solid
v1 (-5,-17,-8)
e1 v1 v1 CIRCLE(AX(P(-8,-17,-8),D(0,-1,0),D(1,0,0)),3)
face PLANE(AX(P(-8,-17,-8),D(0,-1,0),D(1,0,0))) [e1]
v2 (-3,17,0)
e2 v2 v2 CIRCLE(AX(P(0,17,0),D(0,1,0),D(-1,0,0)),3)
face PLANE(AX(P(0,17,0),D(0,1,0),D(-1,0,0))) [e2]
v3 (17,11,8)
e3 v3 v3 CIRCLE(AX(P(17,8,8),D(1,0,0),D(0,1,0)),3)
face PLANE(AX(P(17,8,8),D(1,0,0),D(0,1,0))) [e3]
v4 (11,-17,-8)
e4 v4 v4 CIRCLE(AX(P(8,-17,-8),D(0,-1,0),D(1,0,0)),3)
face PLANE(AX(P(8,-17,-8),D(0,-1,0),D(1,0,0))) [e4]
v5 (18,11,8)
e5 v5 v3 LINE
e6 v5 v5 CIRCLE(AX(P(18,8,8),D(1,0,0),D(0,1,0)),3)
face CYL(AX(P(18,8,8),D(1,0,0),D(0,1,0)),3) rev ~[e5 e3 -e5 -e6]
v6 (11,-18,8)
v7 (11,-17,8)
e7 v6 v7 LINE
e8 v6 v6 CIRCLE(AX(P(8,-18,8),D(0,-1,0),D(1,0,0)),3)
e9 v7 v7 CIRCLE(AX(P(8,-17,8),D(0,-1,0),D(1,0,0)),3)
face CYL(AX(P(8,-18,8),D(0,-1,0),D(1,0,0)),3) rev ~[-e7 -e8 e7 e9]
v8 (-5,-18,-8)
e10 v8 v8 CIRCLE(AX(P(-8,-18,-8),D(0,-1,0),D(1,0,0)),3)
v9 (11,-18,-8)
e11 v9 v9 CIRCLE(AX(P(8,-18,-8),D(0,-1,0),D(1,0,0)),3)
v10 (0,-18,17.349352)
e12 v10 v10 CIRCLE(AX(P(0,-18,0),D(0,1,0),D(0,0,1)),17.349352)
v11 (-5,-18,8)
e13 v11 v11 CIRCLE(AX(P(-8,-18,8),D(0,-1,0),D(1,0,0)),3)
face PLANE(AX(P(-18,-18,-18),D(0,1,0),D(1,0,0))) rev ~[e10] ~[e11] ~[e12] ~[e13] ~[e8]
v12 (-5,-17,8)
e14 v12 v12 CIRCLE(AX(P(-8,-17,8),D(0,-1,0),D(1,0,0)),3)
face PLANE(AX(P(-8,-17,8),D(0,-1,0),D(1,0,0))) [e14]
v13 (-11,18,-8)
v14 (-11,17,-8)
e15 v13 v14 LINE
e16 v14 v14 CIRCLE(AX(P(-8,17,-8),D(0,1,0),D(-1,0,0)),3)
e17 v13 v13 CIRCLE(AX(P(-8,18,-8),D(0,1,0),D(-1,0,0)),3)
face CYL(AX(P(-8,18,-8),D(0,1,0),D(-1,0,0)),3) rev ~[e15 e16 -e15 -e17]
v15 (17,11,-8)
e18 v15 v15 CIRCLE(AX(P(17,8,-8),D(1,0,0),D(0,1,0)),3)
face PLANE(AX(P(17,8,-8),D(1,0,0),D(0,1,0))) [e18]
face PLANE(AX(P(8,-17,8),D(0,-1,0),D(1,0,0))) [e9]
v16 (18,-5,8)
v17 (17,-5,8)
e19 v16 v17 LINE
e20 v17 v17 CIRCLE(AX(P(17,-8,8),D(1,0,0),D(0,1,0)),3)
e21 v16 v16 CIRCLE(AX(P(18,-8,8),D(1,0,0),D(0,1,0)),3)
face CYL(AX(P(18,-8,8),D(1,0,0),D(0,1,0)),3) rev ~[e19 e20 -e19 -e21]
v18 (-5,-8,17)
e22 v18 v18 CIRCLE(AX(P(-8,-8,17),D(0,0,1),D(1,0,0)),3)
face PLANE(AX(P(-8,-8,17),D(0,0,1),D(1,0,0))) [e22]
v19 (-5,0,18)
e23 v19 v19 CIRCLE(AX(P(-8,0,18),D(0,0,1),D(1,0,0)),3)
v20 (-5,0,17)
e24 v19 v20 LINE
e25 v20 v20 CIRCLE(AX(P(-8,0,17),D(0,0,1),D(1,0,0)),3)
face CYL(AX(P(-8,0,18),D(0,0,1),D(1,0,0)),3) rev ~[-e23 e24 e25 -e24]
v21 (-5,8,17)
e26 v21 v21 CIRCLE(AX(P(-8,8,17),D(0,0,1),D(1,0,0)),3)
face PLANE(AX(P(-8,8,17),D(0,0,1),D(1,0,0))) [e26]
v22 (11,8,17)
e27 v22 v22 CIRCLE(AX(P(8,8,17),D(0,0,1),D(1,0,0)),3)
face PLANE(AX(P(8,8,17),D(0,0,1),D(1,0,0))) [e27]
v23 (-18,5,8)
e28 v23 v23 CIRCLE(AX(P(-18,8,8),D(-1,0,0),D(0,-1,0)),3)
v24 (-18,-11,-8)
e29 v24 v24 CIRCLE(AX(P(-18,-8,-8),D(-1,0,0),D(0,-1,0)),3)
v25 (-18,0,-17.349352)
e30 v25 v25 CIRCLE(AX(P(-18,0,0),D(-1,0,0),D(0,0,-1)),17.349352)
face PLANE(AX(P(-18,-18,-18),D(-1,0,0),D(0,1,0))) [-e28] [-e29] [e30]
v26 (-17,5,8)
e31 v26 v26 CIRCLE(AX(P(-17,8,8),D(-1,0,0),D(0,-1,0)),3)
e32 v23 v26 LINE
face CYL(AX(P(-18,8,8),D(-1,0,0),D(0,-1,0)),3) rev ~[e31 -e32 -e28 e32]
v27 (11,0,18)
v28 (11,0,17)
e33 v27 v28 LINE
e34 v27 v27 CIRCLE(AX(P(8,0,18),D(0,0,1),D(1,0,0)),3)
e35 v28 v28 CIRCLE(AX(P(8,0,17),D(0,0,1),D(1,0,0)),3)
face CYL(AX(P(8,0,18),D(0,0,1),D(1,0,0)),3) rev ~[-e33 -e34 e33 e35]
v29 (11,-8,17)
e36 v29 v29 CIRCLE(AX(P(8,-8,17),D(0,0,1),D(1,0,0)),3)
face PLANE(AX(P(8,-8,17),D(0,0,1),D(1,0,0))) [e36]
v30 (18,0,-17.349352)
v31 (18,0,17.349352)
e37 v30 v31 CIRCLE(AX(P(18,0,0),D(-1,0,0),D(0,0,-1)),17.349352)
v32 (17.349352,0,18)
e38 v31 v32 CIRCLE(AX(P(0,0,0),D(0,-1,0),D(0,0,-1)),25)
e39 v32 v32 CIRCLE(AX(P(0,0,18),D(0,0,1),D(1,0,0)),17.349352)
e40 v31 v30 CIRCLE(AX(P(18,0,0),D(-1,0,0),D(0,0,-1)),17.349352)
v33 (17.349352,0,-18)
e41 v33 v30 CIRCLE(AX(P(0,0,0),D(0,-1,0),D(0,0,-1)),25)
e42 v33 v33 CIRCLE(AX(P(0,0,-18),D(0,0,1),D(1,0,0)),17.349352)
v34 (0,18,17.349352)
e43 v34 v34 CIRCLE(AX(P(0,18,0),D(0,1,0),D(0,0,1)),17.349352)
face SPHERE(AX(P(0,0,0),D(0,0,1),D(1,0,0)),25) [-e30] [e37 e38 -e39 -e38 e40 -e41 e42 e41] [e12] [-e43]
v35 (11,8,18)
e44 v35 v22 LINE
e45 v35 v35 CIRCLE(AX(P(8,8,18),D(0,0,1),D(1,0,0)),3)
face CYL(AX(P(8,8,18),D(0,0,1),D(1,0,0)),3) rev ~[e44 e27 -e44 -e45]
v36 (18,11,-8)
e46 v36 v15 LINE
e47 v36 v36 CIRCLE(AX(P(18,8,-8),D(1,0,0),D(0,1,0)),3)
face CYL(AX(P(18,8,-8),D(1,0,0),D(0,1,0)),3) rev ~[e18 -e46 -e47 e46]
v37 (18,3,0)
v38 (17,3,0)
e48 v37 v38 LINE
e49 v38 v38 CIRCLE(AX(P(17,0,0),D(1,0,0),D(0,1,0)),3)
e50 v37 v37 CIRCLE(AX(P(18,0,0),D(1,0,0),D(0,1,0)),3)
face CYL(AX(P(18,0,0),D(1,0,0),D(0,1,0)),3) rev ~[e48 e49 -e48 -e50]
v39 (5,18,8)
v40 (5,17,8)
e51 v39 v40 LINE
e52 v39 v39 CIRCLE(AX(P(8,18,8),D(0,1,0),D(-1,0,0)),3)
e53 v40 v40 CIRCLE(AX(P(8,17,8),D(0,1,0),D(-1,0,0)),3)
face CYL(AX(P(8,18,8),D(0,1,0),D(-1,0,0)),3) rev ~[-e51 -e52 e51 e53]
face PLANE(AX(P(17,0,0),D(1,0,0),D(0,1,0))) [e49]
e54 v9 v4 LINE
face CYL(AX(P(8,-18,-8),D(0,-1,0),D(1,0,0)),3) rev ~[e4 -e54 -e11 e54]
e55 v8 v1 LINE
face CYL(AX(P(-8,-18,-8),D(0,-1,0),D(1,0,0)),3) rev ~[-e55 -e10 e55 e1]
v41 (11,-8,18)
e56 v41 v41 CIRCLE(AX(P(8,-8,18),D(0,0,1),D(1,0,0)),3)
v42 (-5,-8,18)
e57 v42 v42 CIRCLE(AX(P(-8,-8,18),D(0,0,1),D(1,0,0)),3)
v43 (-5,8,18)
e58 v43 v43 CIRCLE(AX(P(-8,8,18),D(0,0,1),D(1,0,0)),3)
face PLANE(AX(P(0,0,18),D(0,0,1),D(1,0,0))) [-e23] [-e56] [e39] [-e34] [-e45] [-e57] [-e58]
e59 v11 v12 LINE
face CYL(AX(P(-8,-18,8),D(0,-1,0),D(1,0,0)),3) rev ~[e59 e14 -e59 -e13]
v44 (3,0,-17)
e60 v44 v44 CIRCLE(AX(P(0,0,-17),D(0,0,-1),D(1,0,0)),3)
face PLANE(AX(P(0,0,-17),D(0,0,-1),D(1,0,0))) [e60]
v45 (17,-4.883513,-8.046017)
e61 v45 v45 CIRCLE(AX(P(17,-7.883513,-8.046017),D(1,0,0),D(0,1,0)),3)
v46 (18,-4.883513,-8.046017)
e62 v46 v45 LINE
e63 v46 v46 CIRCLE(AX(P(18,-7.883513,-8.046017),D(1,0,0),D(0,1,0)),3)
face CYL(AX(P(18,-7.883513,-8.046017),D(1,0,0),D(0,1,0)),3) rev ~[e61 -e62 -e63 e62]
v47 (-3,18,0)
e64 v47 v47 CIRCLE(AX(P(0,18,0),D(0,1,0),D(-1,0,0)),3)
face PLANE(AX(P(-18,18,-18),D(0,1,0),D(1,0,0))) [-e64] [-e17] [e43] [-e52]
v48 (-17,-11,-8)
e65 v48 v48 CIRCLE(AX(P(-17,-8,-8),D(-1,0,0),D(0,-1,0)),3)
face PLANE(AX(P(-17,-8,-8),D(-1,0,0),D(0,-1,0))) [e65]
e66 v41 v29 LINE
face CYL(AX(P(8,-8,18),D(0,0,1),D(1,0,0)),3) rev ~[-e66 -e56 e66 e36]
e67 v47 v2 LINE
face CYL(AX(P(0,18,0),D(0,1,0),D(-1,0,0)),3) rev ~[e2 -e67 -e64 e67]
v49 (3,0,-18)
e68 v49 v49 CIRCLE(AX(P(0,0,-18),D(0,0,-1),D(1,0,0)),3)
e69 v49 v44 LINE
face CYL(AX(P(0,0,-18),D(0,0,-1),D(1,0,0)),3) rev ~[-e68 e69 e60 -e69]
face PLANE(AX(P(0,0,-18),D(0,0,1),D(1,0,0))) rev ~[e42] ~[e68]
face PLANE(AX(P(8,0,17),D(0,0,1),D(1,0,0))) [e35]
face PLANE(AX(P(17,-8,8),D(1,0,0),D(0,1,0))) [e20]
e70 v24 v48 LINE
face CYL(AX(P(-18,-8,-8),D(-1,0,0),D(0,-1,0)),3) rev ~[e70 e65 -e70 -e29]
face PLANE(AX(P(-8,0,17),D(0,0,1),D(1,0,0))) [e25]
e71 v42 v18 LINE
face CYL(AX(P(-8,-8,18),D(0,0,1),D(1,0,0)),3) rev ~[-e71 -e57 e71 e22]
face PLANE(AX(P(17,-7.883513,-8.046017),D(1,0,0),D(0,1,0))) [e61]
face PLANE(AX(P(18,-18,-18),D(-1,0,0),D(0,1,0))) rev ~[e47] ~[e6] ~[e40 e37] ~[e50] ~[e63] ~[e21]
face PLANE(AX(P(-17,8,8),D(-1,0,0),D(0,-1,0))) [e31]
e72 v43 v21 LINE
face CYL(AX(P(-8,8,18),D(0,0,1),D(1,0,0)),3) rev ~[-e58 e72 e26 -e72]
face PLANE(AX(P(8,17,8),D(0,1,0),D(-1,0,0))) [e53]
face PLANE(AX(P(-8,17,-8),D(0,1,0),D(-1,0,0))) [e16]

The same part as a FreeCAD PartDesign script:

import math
import FreeCAD as App
import Part
import Sketcher

V = App.Vector


def add_polygon(sketch, points):
    """Adds a closed chain of lines whose ends are joined by coincident constraints."""
    first, n = sketch.GeometryCount, len(points)
    for a, b in zip(points, points[1:] + points[:1]):
        sketch.addGeometry(Part.LineSegment(App.Vector(*a, 0), App.Vector(*b, 0)), False)
    for i in range(n):
        sketch.addConstraint(Sketcher.Constraint("Coincident", first + i, 2, first + (i + 1) % n, 1))

doc = App.newDocument("Part")
params = doc.addObject("Spreadsheet::Sheet", "Params")
for row, (alias, value) in enumerate([
    ("sketch1_radius", "25 mm"),
    ("revolution_angle", "360 deg"),
    ("sketch2_width", "36 mm"),
    ("pad1_length", "36 mm"),
    ("sketch3_diameter", "6 mm"),
    ("pocket1_length", "1 mm"),
    ("sketch4_diameter", "6 mm"),
    ("pocket2_length", "1 mm"),
    ("sketch5_diameter", "6 mm"),
    ("pocket3_length", "1 mm"),
    ("sketch6_diameter", "6 mm"),
    ("pocket4_length", "1 mm"),
    ("sketch7_diameter", "6 mm"),
    ("pocket5_length", "1 mm"),
    ("sketch8_diameter", "6 mm"),
    ("pocket6_length", "1 mm"),
], start=1):
    params.set(f"A{row}", alias)
    params.set(f"B{row}", "=" + value)
    params.setAlias(f"B{row}", alias)

body = doc.addObject("PartDesign::Body", "Body")

sketch1 = body.newObject("Sketcher::SketchObject", "Sketch")
sketch1.AttachmentSupport = (doc.getObject("XZ_Plane"), [""])
sketch1.MapMode = "FlatFace"
sketch1.addGeometry([
    Part.ArcOfCircle(Part.Circle(V(0, 0, 0), V(0, 0, 1), 25), math.radians(-90), math.radians(90)),
    Part.LineSegment(V(0, 25, 0), V(0, -25, 0)),
], False)
sketch1.addConstraint([
    Sketcher.Constraint("Coincident", 0, 1, 1, 2),
    Sketcher.Constraint("Coincident", 1, 1, 0, 2),
    Sketcher.Constraint("Vertical", 1),
    Sketcher.Constraint("Coincident", 0, 3, -1, 1),
    Sketcher.Constraint("PointOnObject", 0, 1, -2),
    Sketcher.Constraint("Radius", 0, 25.0),
])
sketch1.setExpression("Constraints[5]", "Params.sketch1_radius")
revolution = body.newObject("PartDesign::Revolution", "Revolution")
revolution.Profile = sketch1
revolution.ReferenceAxis = (sketch1, ["V_Axis"])
revolution.setExpression("Angle", "Params.revolution_angle")
body2 = doc.addObject("PartDesign::Body", "Body001")

sketch2 = body2.newObject("Sketcher::SketchObject", "Sketch001")
sketch2.AttachmentSupport = (doc.getObject("XY_Plane001"), [""])
sketch2.MapMode = "FlatFace"
sketch2.AttachmentOffset = App.Placement(V(0, 0, -18), App.Rotation())
add_polygon(sketch2, [(-18, 18), (-18, -18), (18, -18), (18, 18)])
sketch2.addConstraint([
    Sketcher.Constraint("Vertical", 0),
    Sketcher.Constraint("Horizontal", 1),
    Sketcher.Constraint("Vertical", 2),
    Sketcher.Constraint("Horizontal", 3),
    Sketcher.Constraint("Symmetric", 0, 2, 2, 2, -1, 1),
    Sketcher.Constraint("Equal", 3, 0),
    Sketcher.Constraint("DistanceX", 1, 1, 1, 2, 36.0),
])
sketch2.setExpression("Constraints[10]", "Params.sketch2_width")
pad1 = body2.newObject("PartDesign::Pad", "Pad")
pad1.Profile = sketch2
pad1.setExpression("Length", "Params.pad1_length")
doc.recompute()

boolean = body2.newObject("PartDesign::Boolean", "Boolean")
boolean.Type = "Common"
boolean.addObjects([body])

sketch3 = body2.newObject("Sketcher::SketchObject", "Sketch002")
sketch3.AttachmentSupport = (doc.getObject("XY_Plane001"), [""])
sketch3.MapMode = "FlatFace"
sketch3.AttachmentOffset = App.Placement(V(0, 0, 18), App.Rotation())
sketch3.addGeometry([
    Part.Circle(V(-8, 8, 0), V(0, 0, 1), 3),
    Part.Circle(V(-8, 0, 0), V(0, 0, 1), 3),
    Part.Circle(V(-8, -8, 0), V(0, 0, 1), 3),
    Part.Circle(V(8, 8, 0), V(0, 0, 1), 3),
    Part.Circle(V(8, -8, 0), V(0, 0, 1), 3),
    Part.Circle(V(8, 0, 0), V(0, 0, 1), 3),
], False)
sketch3.addConstraint([
    Sketcher.Constraint("Equal", 0, 1),
    Sketcher.Constraint("Equal", 1, 2),
    Sketcher.Constraint("Equal", 2, 3),
    Sketcher.Constraint("Equal", 3, 4),
    Sketcher.Constraint("Equal", 4, 5),
    Sketcher.Constraint("Symmetric", 2, 3, 3, 3, -1, 1),
    Sketcher.Constraint("Symmetric", 0, 3, 4, 3, -1, 1),
    Sketcher.Constraint("Symmetric", 1, 3, 5, 3, -1, 1),
    Sketcher.Constraint("Symmetric", 0, 3, 3, 3, -2),
    Sketcher.Constraint("PointOnObject", 1, 3, -1),
    Sketcher.Constraint("Vertical", 0, 3, 1, 3),
    Sketcher.Constraint("Diameter", 0, 6.0),
    Sketcher.Constraint("DistanceX", 0, 3, -1, 1, 8.0),
    Sketcher.Constraint("DistanceY", -1, 1, 0, 3, 8.0),
])
sketch3.setExpression("Constraints[11]", "Params.sketch3_diameter")
pocket1 = body2.newObject("PartDesign::Pocket", "Pocket")
pocket1.Profile = sketch3
pocket1.setExpression("Length", "Params.pocket1_length")

sketch4 = body2.newObject("Sketcher::SketchObject", "Sketch003")
sketch4.AttachmentSupport = (doc.getObject("YZ_Plane001"), [""])
sketch4.MapMode = "FlatFace"
sketch4.AttachmentOffset = App.Placement(V(0, 0, 18), App.Rotation())
sketch4.addGeometry([
    Part.Circle(V(-8, 8, 0), V(0, 0, 1), 3),
    Part.Circle(V(8, 8, 0), V(0, 0, 1), 3),
    Part.Circle(V(-7.883513, -8.046017, 0), V(0, 0, 1), 3),
    Part.Circle(V(8, -8, 0), V(0, 0, 1), 3),
    Part.Circle(V(0, 0, 0), V(0, 0, 1), 3),
], False)
sketch4.addConstraint([
    Sketcher.Constraint("Coincident", 4, 3, -1, 1),
    Sketcher.Constraint("Equal", 0, 1),
    Sketcher.Constraint("Equal", 1, 2),
    Sketcher.Constraint("Equal", 2, 3),
    Sketcher.Constraint("Equal", 3, 4),
    Sketcher.Constraint("Symmetric", 0, 3, 3, 3, -1, 1),
    Sketcher.Constraint("Symmetric", 0, 3, 1, 3, -2),
    Sketcher.Constraint("Diameter", 0, 6.0),
    Sketcher.Constraint("DistanceX", 0, 3, -1, 1, 8.0),
    Sketcher.Constraint("DistanceY", -1, 1, 0, 3, 8.0),
    Sketcher.Constraint("DistanceX", 2, 3, -1, 1, 7.883513),
    Sketcher.Constraint("DistanceY", 2, 3, -1, 1, 8.046017),
])
sketch4.setExpression("Constraints[7]", "Params.sketch4_diameter")
pocket2 = body2.newObject("PartDesign::Pocket", "Pocket001")
pocket2.Profile = sketch4
pocket2.setExpression("Length", "Params.pocket2_length")

sketch5 = body2.newObject("Sketcher::SketchObject", "Sketch004")
sketch5.AttachmentSupport = (doc.getObject("XZ_Plane001"), [""])
sketch5.MapMode = "FlatFace"
sketch5.AttachmentOffset = App.Placement(V(0, 0, 18), App.Rotation())
sketch5.addGeometry([
    Part.Circle(V(-8, 8, 0), V(0, 0, 1), 3),
    Part.Circle(V(8, 8, 0), V(0, 0, 1), 3),
    Part.Circle(V(8, -8, 0), V(0, 0, 1), 3),
    Part.Circle(V(-8, -8, 0), V(0, 0, 1), 3),
], False)
sketch5.addConstraint([
    Sketcher.Constraint("Equal", 0, 1),
    Sketcher.Constraint("Equal", 1, 2),
    Sketcher.Constraint("Equal", 2, 3),
    Sketcher.Constraint("Symmetric", 0, 3, 2, 3, -1, 1),
    Sketcher.Constraint("Symmetric", 1, 3, 3, 3, -1, 1),
    Sketcher.Constraint("Symmetric", 0, 3, 1, 3, -2),
    Sketcher.Constraint("Diameter", 0, 6.0),
    Sketcher.Constraint("DistanceX", 0, 3, -1, 1, 8.0),
    Sketcher.Constraint("DistanceY", -1, 1, 0, 3, 8.0),
])
sketch5.setExpression("Constraints[6]", "Params.sketch5_diameter")
pocket3 = body2.newObject("PartDesign::Pocket", "Pocket002")
pocket3.Profile = sketch5
pocket3.setExpression("Length", "Params.pocket3_length")

sketch6 = body2.newObject("Sketcher::SketchObject", "Sketch005")
sketch6.AttachmentSupport = (doc.getObject("XZ_Plane001"), [""])
sketch6.MapMode = "FlatFace"
sketch6.AttachmentOffset = App.Placement(V(0, 0, -18), App.Rotation())
sketch6.addGeometry([
    Part.Circle(V(8, 8, 0), V(0, 0, 1), 3),
    Part.Circle(V(0, 0, 0), V(0, 0, 1), 3),
    Part.Circle(V(-8, -8, 0), V(0, 0, 1), 3),
], False)
sketch6.addConstraint([
    Sketcher.Constraint("Coincident", 1, 3, -1, 1),
    Sketcher.Constraint("Equal", 0, 1),
    Sketcher.Constraint("Equal", 1, 2),
    Sketcher.Constraint("Symmetric", 0, 3, 2, 3, -1, 1),
    Sketcher.Constraint("Diameter", 0, 6.0),
    Sketcher.Constraint("DistanceX", -1, 1, 0, 3, 8.0),
    Sketcher.Constraint("DistanceY", -1, 1, 0, 3, 8.0),
])
sketch6.setExpression("Constraints[4]", "Params.sketch6_diameter")
pocket4 = body2.newObject("PartDesign::Pocket", "Pocket003")
pocket4.Profile = sketch6
pocket4.setExpression("Length", "Params.pocket4_length")
pocket4.Reversed = True

sketch7 = body2.newObject("Sketcher::SketchObject", "Sketch006")
sketch7.AttachmentSupport = (doc.getObject("XY_Plane001"), [""])
sketch7.MapMode = "FlatFace"
sketch7.AttachmentOffset = App.Placement(V(0, 0, -18), App.Rotation())
sketch7.addGeometry(Part.Circle(V(0, 0, 0), V(0, 0, 1), 3), False)
sketch7.addConstraint([
    Sketcher.Constraint("Coincident", 0, 3, -1, 1),
    Sketcher.Constraint("Diameter", 0, 6.0),
])
sketch7.setExpression("Constraints[1]", "Params.sketch7_diameter")
pocket5 = body2.newObject("PartDesign::Pocket", "Pocket004")
pocket5.Profile = sketch7
pocket5.setExpression("Length", "Params.pocket5_length")
pocket5.Reversed = True

sketch8 = body2.newObject("Sketcher::SketchObject", "Sketch007")
sketch8.AttachmentSupport = (doc.getObject("YZ_Plane001"), [""])
sketch8.MapMode = "FlatFace"
sketch8.AttachmentOffset = App.Placement(V(0, 0, -18), App.Rotation())
sketch8.addGeometry([
    Part.Circle(V(8, 8, 0), V(0, 0, 1), 3),
    Part.Circle(V(-8, -8, 0), V(0, 0, 1), 3),
], False)
sketch8.addConstraint([
    Sketcher.Constraint("Equal", 0, 1),
    Sketcher.Constraint("Symmetric", 0, 3, 1, 3, -1, 1),
    Sketcher.Constraint("Diameter", 0, 6.0),
    Sketcher.Constraint("DistanceX", -1, 1, 0, 3, 8.0),
    Sketcher.Constraint("DistanceY", -1, 1, 0, 3, 8.0),
])
sketch8.setExpression("Constraints[2]", "Params.sketch8_diameter")
pocket6 = body2.newObject("PartDesign::Pocket", "Pocket005")
pocket6.Profile = sketch8
pocket6.setExpression("Length", "Params.pocket6_length")
pocket6.Reversed = True

doc.recompute()
